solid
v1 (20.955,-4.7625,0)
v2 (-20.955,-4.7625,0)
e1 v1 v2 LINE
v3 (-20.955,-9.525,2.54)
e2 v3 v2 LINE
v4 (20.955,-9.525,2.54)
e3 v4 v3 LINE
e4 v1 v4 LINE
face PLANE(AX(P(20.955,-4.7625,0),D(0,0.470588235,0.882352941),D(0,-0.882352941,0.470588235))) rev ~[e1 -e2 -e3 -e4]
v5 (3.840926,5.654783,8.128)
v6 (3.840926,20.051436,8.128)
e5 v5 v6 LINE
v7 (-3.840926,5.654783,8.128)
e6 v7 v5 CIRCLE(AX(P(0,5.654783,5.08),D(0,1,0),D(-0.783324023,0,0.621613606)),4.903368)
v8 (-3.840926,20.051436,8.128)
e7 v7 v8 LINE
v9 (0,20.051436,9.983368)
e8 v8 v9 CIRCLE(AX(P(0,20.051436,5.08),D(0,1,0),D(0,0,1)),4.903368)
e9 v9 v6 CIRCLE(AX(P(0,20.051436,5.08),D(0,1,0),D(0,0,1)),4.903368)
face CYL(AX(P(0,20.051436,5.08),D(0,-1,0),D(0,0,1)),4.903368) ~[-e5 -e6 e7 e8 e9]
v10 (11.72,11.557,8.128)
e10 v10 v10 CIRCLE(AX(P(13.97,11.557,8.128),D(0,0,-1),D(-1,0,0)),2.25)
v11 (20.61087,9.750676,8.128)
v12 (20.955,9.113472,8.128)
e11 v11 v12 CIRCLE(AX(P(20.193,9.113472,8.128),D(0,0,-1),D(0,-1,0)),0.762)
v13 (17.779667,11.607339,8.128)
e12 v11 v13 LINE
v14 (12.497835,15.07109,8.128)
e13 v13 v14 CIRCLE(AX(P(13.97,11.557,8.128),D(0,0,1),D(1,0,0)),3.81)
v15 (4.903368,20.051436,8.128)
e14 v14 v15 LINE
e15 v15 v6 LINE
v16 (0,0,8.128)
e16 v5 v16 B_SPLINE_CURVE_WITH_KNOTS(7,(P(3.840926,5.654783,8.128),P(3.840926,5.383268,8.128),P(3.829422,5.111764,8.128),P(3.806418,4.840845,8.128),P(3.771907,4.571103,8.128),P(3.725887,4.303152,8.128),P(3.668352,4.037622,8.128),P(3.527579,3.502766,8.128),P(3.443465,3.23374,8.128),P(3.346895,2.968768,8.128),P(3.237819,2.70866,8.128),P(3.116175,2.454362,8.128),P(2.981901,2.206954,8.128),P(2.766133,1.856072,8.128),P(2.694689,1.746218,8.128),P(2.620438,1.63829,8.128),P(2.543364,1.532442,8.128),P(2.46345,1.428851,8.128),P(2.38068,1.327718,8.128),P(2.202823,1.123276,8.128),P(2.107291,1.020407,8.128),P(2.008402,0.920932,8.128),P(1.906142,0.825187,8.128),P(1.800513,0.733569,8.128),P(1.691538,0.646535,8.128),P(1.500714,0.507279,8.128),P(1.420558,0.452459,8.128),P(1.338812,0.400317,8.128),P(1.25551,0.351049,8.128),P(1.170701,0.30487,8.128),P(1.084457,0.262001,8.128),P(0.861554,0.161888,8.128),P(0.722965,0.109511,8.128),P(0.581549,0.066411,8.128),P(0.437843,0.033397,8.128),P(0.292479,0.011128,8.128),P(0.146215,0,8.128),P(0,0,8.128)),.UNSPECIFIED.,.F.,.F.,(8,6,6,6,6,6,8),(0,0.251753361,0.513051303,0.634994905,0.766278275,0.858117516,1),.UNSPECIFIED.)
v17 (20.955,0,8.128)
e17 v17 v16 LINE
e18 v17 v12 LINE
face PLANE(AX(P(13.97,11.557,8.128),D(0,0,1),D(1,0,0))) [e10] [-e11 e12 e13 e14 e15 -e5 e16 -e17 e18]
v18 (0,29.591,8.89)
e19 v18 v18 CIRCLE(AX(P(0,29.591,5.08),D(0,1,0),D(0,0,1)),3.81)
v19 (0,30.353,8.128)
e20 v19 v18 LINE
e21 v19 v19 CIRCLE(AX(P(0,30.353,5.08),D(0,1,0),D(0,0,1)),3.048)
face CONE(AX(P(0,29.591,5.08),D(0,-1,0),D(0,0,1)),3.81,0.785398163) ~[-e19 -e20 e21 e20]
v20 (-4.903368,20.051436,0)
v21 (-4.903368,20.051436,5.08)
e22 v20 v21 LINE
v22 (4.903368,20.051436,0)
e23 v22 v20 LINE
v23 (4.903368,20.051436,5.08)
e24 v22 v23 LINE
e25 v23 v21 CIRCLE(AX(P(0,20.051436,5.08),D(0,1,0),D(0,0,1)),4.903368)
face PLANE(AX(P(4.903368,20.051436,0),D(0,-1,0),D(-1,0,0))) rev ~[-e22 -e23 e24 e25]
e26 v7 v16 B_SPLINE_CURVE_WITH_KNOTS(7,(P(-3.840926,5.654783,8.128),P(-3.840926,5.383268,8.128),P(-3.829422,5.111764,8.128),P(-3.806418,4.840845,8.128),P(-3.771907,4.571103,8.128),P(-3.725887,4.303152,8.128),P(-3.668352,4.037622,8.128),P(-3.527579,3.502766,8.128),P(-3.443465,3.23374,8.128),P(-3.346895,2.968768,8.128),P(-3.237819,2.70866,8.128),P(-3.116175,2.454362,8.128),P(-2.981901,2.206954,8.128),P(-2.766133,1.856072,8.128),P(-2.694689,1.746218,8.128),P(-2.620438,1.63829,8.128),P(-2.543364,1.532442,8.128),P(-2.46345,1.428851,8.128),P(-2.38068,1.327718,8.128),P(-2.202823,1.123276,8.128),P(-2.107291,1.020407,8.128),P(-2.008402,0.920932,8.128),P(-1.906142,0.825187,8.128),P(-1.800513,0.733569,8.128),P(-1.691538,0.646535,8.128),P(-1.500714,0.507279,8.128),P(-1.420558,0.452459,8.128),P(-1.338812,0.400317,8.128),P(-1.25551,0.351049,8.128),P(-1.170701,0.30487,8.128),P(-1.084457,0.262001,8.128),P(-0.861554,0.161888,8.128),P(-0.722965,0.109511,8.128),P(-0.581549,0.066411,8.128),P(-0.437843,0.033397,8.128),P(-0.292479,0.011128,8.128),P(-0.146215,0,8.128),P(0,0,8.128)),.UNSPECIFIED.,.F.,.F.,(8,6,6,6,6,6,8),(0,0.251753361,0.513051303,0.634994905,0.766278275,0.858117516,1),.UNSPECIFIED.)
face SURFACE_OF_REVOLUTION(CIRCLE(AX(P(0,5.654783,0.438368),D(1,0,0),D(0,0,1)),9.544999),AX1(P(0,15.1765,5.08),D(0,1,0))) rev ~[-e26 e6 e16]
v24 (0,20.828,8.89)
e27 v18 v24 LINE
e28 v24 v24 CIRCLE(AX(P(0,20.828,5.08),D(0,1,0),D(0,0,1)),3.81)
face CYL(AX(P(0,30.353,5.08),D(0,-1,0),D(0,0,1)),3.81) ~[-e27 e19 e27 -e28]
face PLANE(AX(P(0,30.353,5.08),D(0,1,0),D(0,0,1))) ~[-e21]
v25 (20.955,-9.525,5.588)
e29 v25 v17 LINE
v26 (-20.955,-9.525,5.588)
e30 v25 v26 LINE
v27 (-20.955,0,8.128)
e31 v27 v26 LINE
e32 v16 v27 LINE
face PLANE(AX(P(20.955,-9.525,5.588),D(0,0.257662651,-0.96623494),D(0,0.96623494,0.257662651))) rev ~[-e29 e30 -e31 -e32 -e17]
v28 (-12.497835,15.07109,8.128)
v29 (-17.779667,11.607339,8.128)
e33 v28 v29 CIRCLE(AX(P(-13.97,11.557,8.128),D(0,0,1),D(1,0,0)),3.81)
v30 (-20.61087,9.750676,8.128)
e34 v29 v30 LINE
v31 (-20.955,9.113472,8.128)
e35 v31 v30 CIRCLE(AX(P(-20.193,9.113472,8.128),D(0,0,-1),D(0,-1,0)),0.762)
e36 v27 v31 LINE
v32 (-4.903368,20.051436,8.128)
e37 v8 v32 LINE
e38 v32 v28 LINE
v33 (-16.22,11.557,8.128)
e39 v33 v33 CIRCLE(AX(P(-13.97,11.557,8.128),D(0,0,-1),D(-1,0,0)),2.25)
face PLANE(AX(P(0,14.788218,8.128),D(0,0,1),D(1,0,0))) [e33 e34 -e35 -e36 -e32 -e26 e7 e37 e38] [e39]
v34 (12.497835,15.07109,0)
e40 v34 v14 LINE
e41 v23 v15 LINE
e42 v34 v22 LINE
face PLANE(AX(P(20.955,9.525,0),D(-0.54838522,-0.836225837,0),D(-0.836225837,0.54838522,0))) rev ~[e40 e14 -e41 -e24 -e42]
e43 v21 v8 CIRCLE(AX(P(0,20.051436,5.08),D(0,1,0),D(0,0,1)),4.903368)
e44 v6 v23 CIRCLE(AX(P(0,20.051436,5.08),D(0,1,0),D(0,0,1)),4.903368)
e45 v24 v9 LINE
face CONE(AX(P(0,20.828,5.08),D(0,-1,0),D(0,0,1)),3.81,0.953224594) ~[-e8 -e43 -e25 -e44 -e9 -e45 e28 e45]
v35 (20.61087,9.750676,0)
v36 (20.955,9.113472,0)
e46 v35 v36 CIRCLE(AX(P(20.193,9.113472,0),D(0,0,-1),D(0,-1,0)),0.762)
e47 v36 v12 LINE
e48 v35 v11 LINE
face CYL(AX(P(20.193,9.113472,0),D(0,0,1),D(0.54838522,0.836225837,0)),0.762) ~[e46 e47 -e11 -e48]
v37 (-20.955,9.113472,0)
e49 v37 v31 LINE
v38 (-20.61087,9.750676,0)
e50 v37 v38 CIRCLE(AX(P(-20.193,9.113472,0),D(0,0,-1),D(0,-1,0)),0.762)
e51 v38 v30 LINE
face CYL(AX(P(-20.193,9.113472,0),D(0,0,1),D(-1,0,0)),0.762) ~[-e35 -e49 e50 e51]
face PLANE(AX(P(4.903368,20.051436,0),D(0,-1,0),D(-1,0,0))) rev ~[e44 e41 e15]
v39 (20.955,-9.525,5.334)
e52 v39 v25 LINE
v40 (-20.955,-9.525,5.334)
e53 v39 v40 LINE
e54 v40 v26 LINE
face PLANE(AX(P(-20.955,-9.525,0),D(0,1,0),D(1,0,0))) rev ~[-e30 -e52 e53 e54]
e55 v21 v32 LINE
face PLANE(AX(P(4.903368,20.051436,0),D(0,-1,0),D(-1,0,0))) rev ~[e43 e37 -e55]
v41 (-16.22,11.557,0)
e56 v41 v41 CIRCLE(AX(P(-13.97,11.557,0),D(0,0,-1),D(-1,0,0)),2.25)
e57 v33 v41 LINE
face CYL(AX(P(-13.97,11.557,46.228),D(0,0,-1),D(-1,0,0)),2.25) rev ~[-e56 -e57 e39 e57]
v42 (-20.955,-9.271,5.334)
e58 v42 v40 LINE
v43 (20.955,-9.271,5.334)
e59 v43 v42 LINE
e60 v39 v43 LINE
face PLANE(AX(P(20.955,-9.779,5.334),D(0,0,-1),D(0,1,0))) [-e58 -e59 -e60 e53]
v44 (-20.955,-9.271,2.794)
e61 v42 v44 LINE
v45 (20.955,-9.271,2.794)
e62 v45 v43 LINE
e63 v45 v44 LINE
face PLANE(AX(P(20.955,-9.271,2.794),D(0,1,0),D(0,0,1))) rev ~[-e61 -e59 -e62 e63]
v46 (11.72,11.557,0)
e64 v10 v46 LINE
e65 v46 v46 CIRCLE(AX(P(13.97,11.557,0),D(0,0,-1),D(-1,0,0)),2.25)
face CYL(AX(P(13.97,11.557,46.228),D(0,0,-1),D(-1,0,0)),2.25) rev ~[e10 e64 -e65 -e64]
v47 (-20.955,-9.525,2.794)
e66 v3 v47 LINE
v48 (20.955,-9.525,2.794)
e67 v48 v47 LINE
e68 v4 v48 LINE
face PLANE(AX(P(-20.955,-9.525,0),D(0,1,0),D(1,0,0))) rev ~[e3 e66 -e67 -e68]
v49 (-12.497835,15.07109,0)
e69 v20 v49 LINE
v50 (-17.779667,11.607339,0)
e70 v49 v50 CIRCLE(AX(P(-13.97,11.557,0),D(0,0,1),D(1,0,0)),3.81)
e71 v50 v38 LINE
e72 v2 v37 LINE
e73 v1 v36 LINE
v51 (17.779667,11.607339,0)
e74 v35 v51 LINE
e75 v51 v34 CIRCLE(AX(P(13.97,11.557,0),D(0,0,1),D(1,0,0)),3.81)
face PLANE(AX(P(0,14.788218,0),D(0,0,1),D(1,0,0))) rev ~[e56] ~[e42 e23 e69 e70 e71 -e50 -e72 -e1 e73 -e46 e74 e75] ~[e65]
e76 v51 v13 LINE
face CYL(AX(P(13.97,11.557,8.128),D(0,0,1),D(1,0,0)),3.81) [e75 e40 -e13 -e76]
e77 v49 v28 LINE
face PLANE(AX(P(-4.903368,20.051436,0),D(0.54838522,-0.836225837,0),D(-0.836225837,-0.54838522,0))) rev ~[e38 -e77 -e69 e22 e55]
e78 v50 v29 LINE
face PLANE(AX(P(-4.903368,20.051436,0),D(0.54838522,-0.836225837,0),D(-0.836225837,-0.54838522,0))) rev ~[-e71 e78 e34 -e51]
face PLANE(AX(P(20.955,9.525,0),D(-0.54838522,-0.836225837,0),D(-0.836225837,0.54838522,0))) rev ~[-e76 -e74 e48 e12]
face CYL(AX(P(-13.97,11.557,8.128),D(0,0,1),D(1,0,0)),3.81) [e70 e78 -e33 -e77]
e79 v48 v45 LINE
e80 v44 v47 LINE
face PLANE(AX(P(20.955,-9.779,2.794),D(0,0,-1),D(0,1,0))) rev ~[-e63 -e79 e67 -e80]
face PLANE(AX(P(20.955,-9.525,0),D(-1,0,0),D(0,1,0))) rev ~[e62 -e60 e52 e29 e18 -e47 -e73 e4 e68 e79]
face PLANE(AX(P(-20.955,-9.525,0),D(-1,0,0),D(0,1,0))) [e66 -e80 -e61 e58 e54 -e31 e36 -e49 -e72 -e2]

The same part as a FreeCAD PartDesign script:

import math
import FreeCAD as App
import Part
import Sketcher

V = App.Vector
Q = App.Units.Quantity


def edges_at(feature, points):
    """Names of the edges that pass closest to the given points."""
    edges = feature.Shape.Edges
    near = lambda p: min(range(len(edges)), key=lambda i: edges[i].distToShape(Part.Vertex(*p))[0])
    return sorted({f"Edge{near(p) + 1}" for p in points})

doc = App.newDocument("Part")
params = doc.addObject("Spreadsheet::Sheet", "Params")
for row, (alias, value) in enumerate([
    ("sketch1_width", "1.65 in"),
    ("sketch1_height", "0.75 in"),
    ("pad1_length", "0.32 in"),
    ("sketch2_height", "0.1 in"),
    ("sketch2_width", "0.375 in"),
    ("sketch2_width2", "0.1875 in"),
    ("sketch3_height", "0.1 in"),
    ("sketch3_width", "0.02 in"),
    ("sketch4_height", "0.15 in"),
    ("sketch4_height2", "0.12 in"),
    ("sketch4_width", "1.195 in"),
    ("sketch4_width2", "0.375 in"),
    ("revolution_angle", "360 deg"),
    ("chamfer_size", "0.03 in"),
    ("sketch5_width", "1.65 in"),
    ("pad2_length", "0.32 in"),
    ("sketch6_diameter", "0.3 in"),
    ("hole_diameter", "4.5 mm"),
    ("hole_depth", "1.5 in"),
    ("fillet_radius", "0.03 in"),
], start=1):
    params.set(f"A{row}", alias)
    params.set(f"B{row}", "=" + value)
    params.setAlias(f"B{row}", alias)

body = doc.addObject("PartDesign::Body", "Body")

sketch1 = doc.addObject("Sketcher::SketchObject", "Sketch")
body.addObject(sketch1)
sketch1.AttachmentSupport = (doc.XY_Plane, [""])
sketch1.MapMode = "FlatFace"
sketch1.addGeometry([
    Part.LineSegment(V(-21, 10, 0), V(-21, -10, 0)),
    Part.LineSegment(V(-21, -10, 0), V(21, -10, 0)),
    Part.LineSegment(V(21, -10, 0), V(21, 10, 0)),
    Part.LineSegment(V(21, 10, 0), V(-21, 10, 0)),
], False)
sketch1.addConstraint([
    Sketcher.Constraint("Coincident", 0, 2, 1, 1),
    Sketcher.Constraint("Coincident", 1, 2, 2, 1),
    Sketcher.Constraint("Coincident", 2, 2, 3, 1),
    Sketcher.Constraint("Coincident", 3, 2, 0, 1),
    Sketcher.Constraint("Vertical", 0),
    Sketcher.Constraint("Horizontal", 1),
    Sketcher.Constraint("Vertical", 2),
    Sketcher.Constraint("Horizontal", 3),
    Sketcher.Constraint("Symmetric", 0, 2, 2, 2, -1, 1),
    Sketcher.Constraint("DistanceX", 1, 1, 1, 2, Q("1.65 in")),
    Sketcher.Constraint("DistanceY", 0, 2, 0, 1, Q("0.75 in")),
])
sketch1.setExpression("Constraints[9]", "Params.sketch1_width")
sketch1.setExpression("Constraints[10]", "Params.sketch1_height")
pad1 = doc.addObject("PartDesign::Pad", "Pad")
body.addObject(pad1)
pad1.Profile = sketch1
pad1.setExpression("Length", "Params.pad1_length")

sketch2 = doc.addObject("Sketcher::SketchObject", "Sketch001")
body.addObject(sketch2)
sketch2.AttachmentSupport = (doc.YZ_Plane, [""])
sketch2.MapMode = "FlatFace"
sketch2.AttachmentOffset = App.Placement(V(0, 0, 0.825 * 25.4), App.Rotation())
sketch2.addGeometry([
    Part.LineSegment(V(-9.5, 5.6, 0), V(0, 8.1, 0)),
    Part.LineSegment(V(0, 8.1, 0), V(-9.5, 8.1, 0)),
    Part.LineSegment(V(-9.5, 8.1, 0), V(-9.5, 5.6, 0)),
    Part.LineSegment(V(-4.8, 0, 0), V(-9.5, 2.5, 0)),
    Part.LineSegment(V(-9.5, 2.5, 0), V(-9.5, 0, 0)),
    Part.LineSegment(V(-9.5, 0, 0), V(-4.8, 0, 0)),
], False)
sketch2.addConstraint([
    Sketcher.Constraint("Coincident", 0, 2, 1, 1),
    Sketcher.Constraint("Coincident", 1, 2, 2, 1),
    Sketcher.Constraint("Coincident", 2, 2, 0, 1),
    Sketcher.Constraint("Coincident", 3, 2, 4, 1),
    Sketcher.Constraint("Coincident", 4, 2, 5, 1),
    Sketcher.Constraint("Coincident", 5, 2, 3, 1),
    Sketcher.Constraint("Horizontal", 1),
    Sketcher.Constraint("Vertical", 2),
    Sketcher.Constraint("Vertical", 4),
    Sketcher.Constraint("Horizontal", 5),
    Sketcher.Constraint("PointOnObject", 0, 2, -2),
    Sketcher.Constraint("PointOnObject", 4, 2, -1),
    Sketcher.Constraint("Vertical", 2, 2, 3, 2),
    Sketcher.Constraint("Equal", 2, 4),
    Sketcher.Constraint("DistanceY", 2, 2, 2, 1, Q("0.1 in")),
    Sketcher.Constraint("DistanceX", 1, 2, 1, 1, Q("0.375 in")),
    Sketcher.Constraint("DistanceX", 5, 1, 5, 2, Q("0.1875 in")),
    Sketcher.Constraint("DistanceY", -1, 1, 0, 2, Q("0.32 in")),
])
sketch2.setExpression("Constraints[14]", "Params.sketch2_height")
sketch2.setExpression("Constraints[15]", "Params.sketch2_width")
sketch2.setExpression("Constraints[16]", "Params.sketch2_width2")
pocket1 = doc.addObject("PartDesign::Pocket", "Pocket")
body.addObject(pocket1)
pocket1.Profile = sketch2
pocket1.Type = "ThroughAll"

sketch3 = doc.addObject("Sketcher::SketchObject", "Sketch002")
body.addObject(sketch3)
sketch3.AttachmentSupport = (doc.YZ_Plane, [""])
sketch3.MapMode = "FlatFace"
sketch3.AttachmentOffset = App.Placement(V(0, 0, 0.825 * 25.4), App.Rotation())
sketch3.addGeometry([
    Part.LineSegment(V(-9.8, 5.3, 0), V(-9.8, 2.8, 0)),
    Part.LineSegment(V(-9.8, 2.8, 0), V(-9.3, 2.8, 0)),
    Part.LineSegment(V(-9.3, 2.8, 0), V(-9.3, 5.3, 0)),
    Part.LineSegment(V(-9.3, 5.3, 0), V(-9.8, 5.3, 0)),
], False)
sketch3.addConstraint([
    Sketcher.Constraint("Coincident", 0, 2, 1, 1),
    Sketcher.Constraint("Coincident", 1, 2, 2, 1),
    Sketcher.Constraint("Coincident", 2, 2, 3, 1),
    Sketcher.Constraint("Coincident", 3, 2, 0, 1),
    Sketcher.Constraint("Vertical", 0),
    Sketcher.Constraint("Horizontal", 1),
    Sketcher.Constraint("Vertical", 2),
    Sketcher.Constraint("Horizontal", 3),
    Sketcher.Constraint("DistanceY", 0, 2, 0, 1, Q("0.1 in")),
    Sketcher.Constraint("DistanceX", 1, 1, 1, 2, Q("0.02 in")),
    Sketcher.Constraint("DistanceY", -1, 1, 0, 2, Q("0.11 in")),
    Sketcher.Constraint("DistanceX", 0, 2, -1, 1, Q("0.385 in")),
])
sketch3.setExpression("Constraints[8]", "Params.sketch3_height")
sketch3.setExpression("Constraints[9]", "Params.sketch3_width")
pocket2 = doc.addObject("PartDesign::Pocket", "Pocket001")
body.addObject(pocket2)
pocket2.Profile = sketch3
pocket2.Type = "ThroughAll"

sketch4 = doc.addObject("Sketcher::SketchObject", "Sketch003")
body.addObject(sketch4)
sketch4.AttachmentSupport = (doc.YZ_Plane, [""])
sketch4.MapMode = "FlatFace"
sketch4.addGeometry([
    Part.LineSegment(V(0, 5.1, 0), V(30.4, 5.1, 0)),
    Part.LineSegment(V(30.4, 5.1, 0), V(30.4, 8.9, 0)),
    Part.LineSegment(V(30.4, 8.9, 0), V(20.8, 8.9, 0)),
    Part.LineSegment(V(20.8, 8.9, 0), V(20.1, 10, 0)),
    Part.LineSegment(V(20.1, 10, 0), V(5.7, 10, 0)),
    Part.ArcOfCircle(Part.Circle(V(5.7, 0.4, 0), V(0, 0, 1), 9.5), math.radians(90), math.radians(126)),
    Part.LineSegment(V(0, 8.1, 0), V(0, 5.1, 0)),
], False)
sketch4.addGeometry(Part.LineSegment(V(0, 5.1, 0), V(30.4, 5.1, 0)), True)
sketch4.addConstraint([
    Sketcher.Constraint("Coincident", 0, 2, 1, 1),
    Sketcher.Constraint("Coincident", 1, 2, 2, 1),
    Sketcher.Constraint("Coincident", 2, 2, 3, 1),
    Sketcher.Constraint("Coincident", 3, 2, 4, 1),
    Sketcher.Constraint("Tangent", 4, 2, 5, 1),
    Sketcher.Constraint("Coincident", 5, 2, 6, 1),
    Sketcher.Constraint("Coincident", 6, 2, 0, 1),
    Sketcher.Constraint("Horizontal", 0),
    Sketcher.Constraint("Vertical", 1),
    Sketcher.Constraint("Horizontal", 2),
    Sketcher.Constraint("Horizontal", 4),
    Sketcher.Constraint("Vertical", 6),
    Sketcher.Constraint("Horizontal", 7),
    Sketcher.Constraint("Coincident", 7, 1, 6, 2),
    Sketcher.Constraint("PointOnObject", 5, 2, -2),
    Sketcher.Constraint("Vertical", 1, 2, 7, 2),
    Sketcher.Constraint("DistanceY", 1, 1, 1, 2, Q("0.15 in")),
    Sketcher.Constraint("DistanceY", 6, 2, 6, 1, Q("0.12 in")),
    Sketcher.Constraint("DistanceY", -1, 1, 0, 2, Q("0.2 in")),
    Sketcher.Constraint("DistanceX", 0, 1, 0, 2, Q("1.195 in")),
    Sketcher.Constraint("DistanceX", 2, 2, 2, 1, Q("0.375 in")),
    Sketcher.Constraint("Radius", 5, 9.544999),
    Sketcher.Constraint("DistanceX", 4, 2, 4, 1, 14.396653),
    Sketcher.Constraint("DistanceY", -1, 1, 5, 3, 0.438368),
])
sketch4.setExpression("Constraints[16]", "Params.sketch4_height")
sketch4.setExpression("Constraints[17]", "Params.sketch4_height2")
sketch4.setExpression("Constraints[19]", "Params.sketch4_width")
sketch4.setExpression("Constraints[20]", "Params.sketch4_width2")
revolution = doc.addObject("PartDesign::Revolution", "Revolution")
body.addObject(revolution)
revolution.Profile = sketch4
revolution.ReferenceAxis = (sketch4, ["Axis0"])
revolution.setExpression("Angle", "Params.revolution_angle")
doc.recompute()

chamfer = doc.addObject("PartDesign::Chamfer", "Chamfer")
body.addObject(chamfer)
chamfer.Base = (revolution, edges_at(revolution, [(0, 30.353, 1.27)]))
chamfer.setExpression("Size", "Params.chamfer_size")

sketch5 = doc.addObject("Sketcher::SketchObject", "Sketch004")
body.addObject(sketch5)
sketch5.AttachmentSupport = (doc.XY_Plane, [""])
sketch5.MapMode = "FlatFace"
sketch5.addGeometry([
    Part.LineSegment(V(5, 20, 0), V(-5, 20, 0)),
    Part.LineSegment(V(-5, 20, 0), V(-21, 10, 0)),
    Part.LineSegment(V(-21, 10, 0), V(21, 10, 0)),
    Part.LineSegment(V(21, 10, 0), V(5, 20, 0)),
], False)
sketch5.addConstraint([
    Sketcher.Constraint("Coincident", 0, 2, 1, 1),
    Sketcher.Constraint("Coincident", 1, 2, 2, 1),
    Sketcher.Constraint("Coincident", 2, 2, 3, 1),
    Sketcher.Constraint("Coincident", 3, 2, 0, 1),
    Sketcher.Constraint("Horizontal", 0),
    Sketcher.Constraint("Horizontal", 2),
    Sketcher.Constraint("Equal", 1, 3),
    Sketcher.Constraint("DistanceX", 2, 1, 2, 2, Q("1.65 in")),
    Sketcher.Constraint("DistanceX", 1, 2, -1, 1, Q("0.825 in")),
    Sketcher.Constraint("DistanceY", -1, 1, 1, 2, Q("0.375 in")),
    Sketcher.Constraint("Distance", 1, 19.195332),
    Sketcher.Constraint("DistanceX", 0, 2, 0, 1, 9.806735),
])
sketch5.setExpression("Constraints[7]", "Params.sketch5_width")
pad2 = doc.addObject("PartDesign::Pad", "Pad001")
body.addObject(pad2)
pad2.Profile = sketch5
pad2.setExpression("Length", "Params.pad2_length")

sketch6 = doc.addObject("Sketcher::SketchObject", "Sketch005")
body.addObject(sketch6)
sketch6.AttachmentSupport = (doc.XY_Plane, [""])
sketch6.MapMode = "FlatFace"
sketch6.AttachmentOffset = App.Placement(V(0, 0, 0.32 * 25.4), App.Rotation())
sketch6.addGeometry([
    Part.Circle(V(14, 11.6, 0), V(0, 0, 1), 3.8),
    Part.Circle(V(-14, 11.6, 0), V(0, 0, 1), 3.8),
], False)
sketch6.addConstraint([
    Sketcher.Constraint("Equal", 0, 1),
    Sketcher.Constraint("Symmetric", 0, 3, 1, 3, -2),
    Sketcher.Constraint("Diameter", 0, Q("0.3 in")),
    Sketcher.Constraint("DistanceX", 1, 3, 0, 3, Q("1.1 in")),
    Sketcher.Constraint("DistanceY", -1, 1, 0, 3, Q("0.455 in")),
])
sketch6.setExpression("Constraints[2]", "Params.sketch6_diameter")
pad3 = doc.addObject("PartDesign::Pad", "Pad002")
body.addObject(pad3)
pad3.Profile = sketch6
pad3.Type = "UpToLast"
pad3.Reversed = True

sketch7 = doc.addObject("Sketcher::SketchObject", "Sketch006")
body.addObject(sketch7)
sketch7.AttachmentSupport = (doc.XY_Plane, [""])
sketch7.MapMode = "FlatFace"
sketch7.AttachmentOffset = App.Placement(V(0, 0, 0.32 * 25.4), App.Rotation())
sketch7.addGeometry([
    Part.Circle(V(-14, 11.6, 0), V(0, 0, 1), 2.2),
    Part.Circle(V(14, 11.6, 0), V(0, 0, 1), 2.2),
], False)
sketch7.addConstraint([
    Sketcher.Constraint("Equal", 0, 1),
    Sketcher.Constraint("Symmetric", 0, 3, 1, 3, -2),
    Sketcher.Constraint("DistanceX", 0, 3, 1, 3, Q("1.1 in")),
    Sketcher.Constraint("Diameter", 0, 4.5),
    Sketcher.Constraint("DistanceY", -1, 1, 0, 3, Q("0.455 in")),
])
doc.recompute()
hole = doc.addObject("PartDesign::Hole", "Hole")
body.addObject(hole)
hole.Profile = sketch7
hole.ThreadType = "None"
hole.setExpression("Diameter", "Params.hole_diameter")
hole.DepthType = "Dimension"
hole.setExpression("Depth", "Params.hole_depth")
hole.DrillPoint = "Angled"
hole.DrillPointAngle = 118
doc.recompute()

fillet = doc.addObject("PartDesign::Fillet", "Fillet")
body.addObject(fillet)
fillet.Base = (hole, edges_at(hole, [(20.955, 9.525, 4.064), (-20.955, 9.525, 4.064)]))
fillet.setExpression("Radius", "Params.fillet_radius")

doc.recompute()
